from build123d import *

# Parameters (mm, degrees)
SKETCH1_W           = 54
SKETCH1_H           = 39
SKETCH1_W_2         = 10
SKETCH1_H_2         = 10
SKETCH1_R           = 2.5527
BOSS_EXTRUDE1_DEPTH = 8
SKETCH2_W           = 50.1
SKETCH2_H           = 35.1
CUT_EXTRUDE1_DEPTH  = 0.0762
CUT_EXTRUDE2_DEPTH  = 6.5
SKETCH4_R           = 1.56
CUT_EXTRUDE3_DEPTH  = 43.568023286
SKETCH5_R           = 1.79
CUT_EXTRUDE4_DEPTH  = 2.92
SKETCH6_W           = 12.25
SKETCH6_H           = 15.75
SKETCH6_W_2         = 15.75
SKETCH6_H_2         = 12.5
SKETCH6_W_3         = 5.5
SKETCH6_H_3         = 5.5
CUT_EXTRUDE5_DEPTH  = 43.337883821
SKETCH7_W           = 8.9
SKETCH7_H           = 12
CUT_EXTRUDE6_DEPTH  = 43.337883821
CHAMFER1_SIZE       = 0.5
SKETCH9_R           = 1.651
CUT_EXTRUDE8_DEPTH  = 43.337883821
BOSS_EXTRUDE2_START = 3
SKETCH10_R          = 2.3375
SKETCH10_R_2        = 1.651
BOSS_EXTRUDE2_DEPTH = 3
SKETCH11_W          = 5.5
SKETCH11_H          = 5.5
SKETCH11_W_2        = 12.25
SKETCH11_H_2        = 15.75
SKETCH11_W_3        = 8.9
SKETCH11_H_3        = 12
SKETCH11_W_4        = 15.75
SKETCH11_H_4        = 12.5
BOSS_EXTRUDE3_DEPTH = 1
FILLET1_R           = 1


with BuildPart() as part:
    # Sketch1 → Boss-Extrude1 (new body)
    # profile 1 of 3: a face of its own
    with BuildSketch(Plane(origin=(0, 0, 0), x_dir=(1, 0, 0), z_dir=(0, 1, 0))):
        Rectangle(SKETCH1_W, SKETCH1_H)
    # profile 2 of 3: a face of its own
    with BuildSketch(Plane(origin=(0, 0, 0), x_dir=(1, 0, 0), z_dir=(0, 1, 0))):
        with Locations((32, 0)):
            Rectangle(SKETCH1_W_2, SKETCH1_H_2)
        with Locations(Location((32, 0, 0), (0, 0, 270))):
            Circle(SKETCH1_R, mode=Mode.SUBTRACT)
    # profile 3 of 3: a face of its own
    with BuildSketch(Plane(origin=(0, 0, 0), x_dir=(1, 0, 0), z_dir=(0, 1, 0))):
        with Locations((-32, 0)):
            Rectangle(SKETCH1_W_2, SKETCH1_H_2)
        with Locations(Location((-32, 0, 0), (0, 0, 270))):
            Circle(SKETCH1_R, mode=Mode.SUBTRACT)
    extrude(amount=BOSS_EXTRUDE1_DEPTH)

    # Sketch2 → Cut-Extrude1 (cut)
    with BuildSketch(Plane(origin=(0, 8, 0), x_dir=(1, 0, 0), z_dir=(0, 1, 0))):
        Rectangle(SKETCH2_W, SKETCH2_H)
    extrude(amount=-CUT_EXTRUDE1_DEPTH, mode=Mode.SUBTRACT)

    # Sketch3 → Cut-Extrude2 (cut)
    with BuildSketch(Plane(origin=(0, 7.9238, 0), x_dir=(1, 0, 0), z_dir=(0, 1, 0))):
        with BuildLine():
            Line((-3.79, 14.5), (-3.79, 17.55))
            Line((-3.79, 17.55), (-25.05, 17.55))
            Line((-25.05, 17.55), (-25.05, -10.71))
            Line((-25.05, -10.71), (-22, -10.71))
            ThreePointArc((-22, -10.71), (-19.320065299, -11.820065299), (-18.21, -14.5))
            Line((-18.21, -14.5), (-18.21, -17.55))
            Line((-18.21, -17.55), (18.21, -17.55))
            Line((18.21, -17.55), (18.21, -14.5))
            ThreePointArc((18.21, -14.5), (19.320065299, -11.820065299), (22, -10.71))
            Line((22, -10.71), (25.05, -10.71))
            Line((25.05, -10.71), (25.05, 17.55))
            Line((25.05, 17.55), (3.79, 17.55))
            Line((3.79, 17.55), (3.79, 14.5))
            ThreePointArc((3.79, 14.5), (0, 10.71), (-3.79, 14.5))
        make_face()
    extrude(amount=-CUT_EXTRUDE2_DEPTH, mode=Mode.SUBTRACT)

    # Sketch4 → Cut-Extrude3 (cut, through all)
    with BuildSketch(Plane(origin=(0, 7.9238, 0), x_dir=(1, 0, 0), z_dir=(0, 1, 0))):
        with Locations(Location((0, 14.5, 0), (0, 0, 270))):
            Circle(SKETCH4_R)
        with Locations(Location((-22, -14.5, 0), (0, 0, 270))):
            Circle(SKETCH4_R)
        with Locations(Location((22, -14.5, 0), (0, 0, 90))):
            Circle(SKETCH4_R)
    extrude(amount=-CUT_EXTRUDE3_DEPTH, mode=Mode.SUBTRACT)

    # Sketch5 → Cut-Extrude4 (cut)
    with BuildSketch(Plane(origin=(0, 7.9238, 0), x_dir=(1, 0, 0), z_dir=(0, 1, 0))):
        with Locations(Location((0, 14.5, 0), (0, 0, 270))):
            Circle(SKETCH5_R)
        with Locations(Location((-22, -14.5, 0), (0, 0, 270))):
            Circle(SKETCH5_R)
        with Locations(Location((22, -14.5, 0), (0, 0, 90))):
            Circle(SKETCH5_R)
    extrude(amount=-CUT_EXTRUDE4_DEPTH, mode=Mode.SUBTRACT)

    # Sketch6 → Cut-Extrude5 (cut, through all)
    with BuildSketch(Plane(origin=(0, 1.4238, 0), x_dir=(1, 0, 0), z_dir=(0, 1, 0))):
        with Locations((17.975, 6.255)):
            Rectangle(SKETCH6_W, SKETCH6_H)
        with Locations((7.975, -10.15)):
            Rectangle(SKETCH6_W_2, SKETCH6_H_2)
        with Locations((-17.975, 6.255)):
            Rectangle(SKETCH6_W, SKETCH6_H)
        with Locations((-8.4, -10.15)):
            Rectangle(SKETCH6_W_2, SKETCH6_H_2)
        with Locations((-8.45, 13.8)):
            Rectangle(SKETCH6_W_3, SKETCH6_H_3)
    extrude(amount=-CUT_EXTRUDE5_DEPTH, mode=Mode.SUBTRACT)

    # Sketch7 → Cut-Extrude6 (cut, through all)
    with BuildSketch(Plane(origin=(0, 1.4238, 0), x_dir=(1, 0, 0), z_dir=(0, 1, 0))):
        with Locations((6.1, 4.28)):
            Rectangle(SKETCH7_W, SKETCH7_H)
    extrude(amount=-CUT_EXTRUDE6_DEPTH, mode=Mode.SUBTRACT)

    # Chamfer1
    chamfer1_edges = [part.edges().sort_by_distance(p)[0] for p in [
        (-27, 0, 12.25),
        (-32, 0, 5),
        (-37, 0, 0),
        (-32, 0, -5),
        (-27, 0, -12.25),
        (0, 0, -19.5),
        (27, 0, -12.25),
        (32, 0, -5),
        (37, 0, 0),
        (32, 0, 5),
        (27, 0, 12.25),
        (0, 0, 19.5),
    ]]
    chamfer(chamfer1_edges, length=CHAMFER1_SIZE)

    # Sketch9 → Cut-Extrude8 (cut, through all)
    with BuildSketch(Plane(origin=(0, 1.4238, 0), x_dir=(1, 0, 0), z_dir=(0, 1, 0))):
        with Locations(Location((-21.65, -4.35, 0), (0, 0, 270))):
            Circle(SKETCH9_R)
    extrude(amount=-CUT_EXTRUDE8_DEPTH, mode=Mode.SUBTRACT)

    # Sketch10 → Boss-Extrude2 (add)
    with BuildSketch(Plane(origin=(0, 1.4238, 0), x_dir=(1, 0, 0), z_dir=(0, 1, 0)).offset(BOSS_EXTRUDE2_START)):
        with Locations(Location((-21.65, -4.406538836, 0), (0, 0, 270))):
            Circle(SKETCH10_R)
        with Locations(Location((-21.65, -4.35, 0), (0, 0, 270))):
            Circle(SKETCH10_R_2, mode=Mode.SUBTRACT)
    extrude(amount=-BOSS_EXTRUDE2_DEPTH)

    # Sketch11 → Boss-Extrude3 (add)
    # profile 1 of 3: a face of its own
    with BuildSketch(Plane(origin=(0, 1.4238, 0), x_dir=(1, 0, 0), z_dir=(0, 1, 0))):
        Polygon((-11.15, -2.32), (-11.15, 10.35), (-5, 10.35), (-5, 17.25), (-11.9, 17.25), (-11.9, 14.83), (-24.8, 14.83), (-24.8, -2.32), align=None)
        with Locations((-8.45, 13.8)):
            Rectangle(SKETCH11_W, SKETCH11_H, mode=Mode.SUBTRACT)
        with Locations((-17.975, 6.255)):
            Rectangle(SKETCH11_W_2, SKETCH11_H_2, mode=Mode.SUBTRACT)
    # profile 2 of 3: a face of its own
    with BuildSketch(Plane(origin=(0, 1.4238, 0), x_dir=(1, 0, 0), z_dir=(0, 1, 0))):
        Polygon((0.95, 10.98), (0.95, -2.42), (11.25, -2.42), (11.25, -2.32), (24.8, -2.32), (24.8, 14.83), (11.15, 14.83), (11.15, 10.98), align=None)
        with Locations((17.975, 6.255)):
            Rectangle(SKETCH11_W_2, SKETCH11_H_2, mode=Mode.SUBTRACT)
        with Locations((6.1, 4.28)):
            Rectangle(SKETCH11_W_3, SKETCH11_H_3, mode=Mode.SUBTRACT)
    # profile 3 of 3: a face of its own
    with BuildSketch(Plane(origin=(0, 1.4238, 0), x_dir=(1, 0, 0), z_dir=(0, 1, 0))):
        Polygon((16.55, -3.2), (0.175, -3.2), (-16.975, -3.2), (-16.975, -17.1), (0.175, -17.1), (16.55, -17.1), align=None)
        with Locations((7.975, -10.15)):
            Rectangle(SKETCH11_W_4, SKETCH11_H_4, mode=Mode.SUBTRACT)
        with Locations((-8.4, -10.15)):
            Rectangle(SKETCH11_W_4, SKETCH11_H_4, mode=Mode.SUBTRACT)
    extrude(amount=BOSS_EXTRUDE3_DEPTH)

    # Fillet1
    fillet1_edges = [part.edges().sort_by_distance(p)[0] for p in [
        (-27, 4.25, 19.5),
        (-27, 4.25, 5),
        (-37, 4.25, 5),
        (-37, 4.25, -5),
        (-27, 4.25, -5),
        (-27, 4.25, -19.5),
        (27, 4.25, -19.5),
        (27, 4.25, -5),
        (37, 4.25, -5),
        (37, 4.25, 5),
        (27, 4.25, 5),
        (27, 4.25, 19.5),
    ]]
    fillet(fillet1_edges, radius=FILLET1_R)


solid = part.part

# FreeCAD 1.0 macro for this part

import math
import FreeCAD as App
import Part
import Sketcher
Q = App.Units.Quantity


def edges_at(feature, points):
    """Names of the edges that pass closest to the given points."""
    edges = feature.Shape.Edges
    near = lambda p: min(range(len(edges)), key=lambda i: edges[i].distToShape(Part.Vertex(*p))[0])
    return sorted({f"Edge{near(p) + 1}" for p in points})

doc = App.newDocument("Part")
body = doc.addObject("PartDesign::Body", "Body")

sketch1 = body.newObject("Sketcher::SketchObject", "Sketch")
sketch1.AttachmentSupport = (doc.getObject("XZ_Plane"), [""])
sketch1.MapMode = "FlatFace"
sketch1.addGeometry([
    Part.LineSegment(App.Vector(-27, 5, 0), App.Vector(-27, 19.5, 0)),
    Part.LineSegment(App.Vector(-27, 19.5, 0), App.Vector(27, 19.5, 0)),
    Part.LineSegment(App.Vector(27, 19.5, 0), App.Vector(27, 5, 0)),
    Part.LineSegment(App.Vector(27, 5, 0), App.Vector(37, 5, 0)),
    Part.LineSegment(App.Vector(37, 5, 0), App.Vector(37, -5, 0)),
    Part.LineSegment(App.Vector(37, -5, 0), App.Vector(27, -5, 0)),
    Part.LineSegment(App.Vector(27, -5, 0), App.Vector(27, -19.5, 0)),
    Part.LineSegment(App.Vector(27, -19.5, 0), App.Vector(-27, -19.5, 0)),
    Part.LineSegment(App.Vector(-27, -19.5, 0), App.Vector(-27, -5, 0)),
    Part.LineSegment(App.Vector(-27, -5, 0), App.Vector(-37, -5, 0)),
    Part.LineSegment(App.Vector(-37, -5, 0), App.Vector(-37, 5, 0)),
    Part.LineSegment(App.Vector(-37, 5, 0), App.Vector(-27, 5, 0)),
    Part.Circle(App.Vector(-32, 0, 0), App.Vector(0, 0, 1), 2.5527),
    Part.Circle(App.Vector(32, 0, 0), App.Vector(0, 0, 1), 2.5527),
], False)
sketch1.addConstraint([
    Sketcher.Constraint("Coincident", 0, 2, 1, 1),
    Sketcher.Constraint("Coincident", 1, 2, 2, 1),
    Sketcher.Constraint("Coincident", 2, 2, 3, 1),
    Sketcher.Constraint("Coincident", 3, 2, 4, 1),
    Sketcher.Constraint("Coincident", 4, 2, 5, 1),
    Sketcher.Constraint("Coincident", 5, 2, 6, 1),
    Sketcher.Constraint("Coincident", 6, 2, 7, 1),
    Sketcher.Constraint("Coincident", 7, 2, 8, 1),
    Sketcher.Constraint("Coincident", 8, 2, 9, 1),
    Sketcher.Constraint("Coincident", 9, 2, 10, 1),
    Sketcher.Constraint("Coincident", 10, 2, 11, 1),
    Sketcher.Constraint("Coincident", 11, 2, 0, 1),
    Sketcher.Constraint("Vertical", 0),
    Sketcher.Constraint("Horizontal", 1),
    Sketcher.Constraint("Vertical", 2),
    Sketcher.Constraint("Horizontal", 3),
    Sketcher.Constraint("Vertical", 4),
    Sketcher.Constraint("Horizontal", 5),
    Sketcher.Constraint("Vertical", 6),
    Sketcher.Constraint("Horizontal", 7),
    Sketcher.Constraint("Vertical", 8),
    Sketcher.Constraint("Horizontal", 9),
    Sketcher.Constraint("Vertical", 10),
    Sketcher.Constraint("Horizontal", 11),
    Sketcher.Constraint("Equal", 12, 13),
    Sketcher.Constraint("Symmetric", 12, 3, 13, 3, -1, 1),
    Sketcher.Constraint("Symmetric", 0, 2, 6, 2, -1, 1),
    Sketcher.Constraint("Symmetric", 2, 2, 8, 2, -1, 1),
    Sketcher.Constraint("Symmetric", 4, 2, 10, 2, -1, 1),
    Sketcher.Constraint("Symmetric", 5, 2, 8, 2, -2),
    Sketcher.Constraint("PointOnObject", 12, 3, -1),
    Sketcher.Constraint("Equal", 11, 4),
    Sketcher.Constraint("DistanceX", 1, 1, 1, 2, Q("54 mm")),
    Sketcher.Constraint("DistanceX", 3, 1, 3, 2, Q("10 mm")),
    Sketcher.Constraint("DistanceY", 0, 1, 0, 2, Q("14.5 mm")),
    Sketcher.Constraint("DistanceX", 12, 3, -1, 1, Q("32 mm")),
    Sketcher.Constraint("Diameter", 12, Q("5.1054 mm")),
])
pad1 = body.newObject("PartDesign::Pad", "Pad")
pad1.Profile = sketch1
pad1.Length = 8
pad1.Reversed = True

sketch2 = body.newObject("Sketcher::SketchObject", "Sketch001")
sketch2.AttachmentSupport = (doc.getObject("XZ_Plane"), [""])
sketch2.MapMode = "FlatFace"
sketch2.AttachmentOffset = App.Placement(App.Vector(0, 0, -8), App.Rotation())
sketch2.addGeometry([
    Part.LineSegment(App.Vector(-25.05, -17.55, 0), App.Vector(-25.05, 17.55, 0)),
    Part.LineSegment(App.Vector(-25.05, 17.55, 0), App.Vector(25.05, 17.55, 0)),
    Part.LineSegment(App.Vector(25.05, 17.55, 0), App.Vector(25.05, -17.55, 0)),
    Part.LineSegment(App.Vector(25.05, -17.55, 0), App.Vector(-25.05, -17.55, 0)),
], False)
sketch2.addConstraint([
    Sketcher.Constraint("Coincident", 0, 2, 1, 1),
    Sketcher.Constraint("Coincident", 1, 2, 2, 1),
    Sketcher.Constraint("Coincident", 2, 2, 3, 1),
    Sketcher.Constraint("Coincident", 3, 2, 0, 1),
    Sketcher.Constraint("Vertical", 0),
    Sketcher.Constraint("Horizontal", 1),
    Sketcher.Constraint("Vertical", 2),
    Sketcher.Constraint("Horizontal", 3),
    Sketcher.Constraint("Symmetric", 0, 2, 2, 2, -1, 1),
    Sketcher.Constraint("DistanceX", 1, 1, 1, 2, Q("50.1 mm")),
    Sketcher.Constraint("DistanceY", 0, 1, 0, 2, Q("35.1 mm")),
])
pocket1 = body.newObject("PartDesign::Pocket", "Pocket")
pocket1.Profile = sketch2
pocket1.Length = 0.0762
pocket1.Reversed = True

sketch3 = body.newObject("Sketcher::SketchObject", "Sketch002")
sketch3.AttachmentSupport = (doc.getObject("XZ_Plane"), [""])
sketch3.MapMode = "FlatFace"
sketch3.AttachmentOffset = App.Placement(App.Vector(0, 0, -7.9238), App.Rotation())
sketch3.addGeometry([
    Part.LineSegment(App.Vector(-3.79, -14.5, 0), App.Vector(-3.79, -17.55, 0)),
    Part.LineSegment(App.Vector(-3.79, -17.55, 0), App.Vector(-25.05, -17.55, 0)),
    Part.LineSegment(App.Vector(-25.05, -17.55, 0), App.Vector(-25.05, 10.71, 0)),
    Part.LineSegment(App.Vector(-25.05, 10.71, 0), App.Vector(-22, 10.71, 0)),
    Part.ArcOfCircle(Part.Circle(App.Vector(-22, 14.5, 0), App.Vector(0, 0, 1), 3.79), math.radians(-90), math.radians(0)),
    Part.LineSegment(App.Vector(-18.21, 14.5, 0), App.Vector(-18.21, 17.55, 0)),
    Part.LineSegment(App.Vector(-18.21, 17.55, 0), App.Vector(18.21, 17.55, 0)),
    Part.LineSegment(App.Vector(18.21, 17.55, 0), App.Vector(18.21, 14.5, 0)),
    Part.ArcOfCircle(Part.Circle(App.Vector(22, 14.5, 0), App.Vector(0, 0, 1), 3.79), math.radians(180), math.radians(270)),
    Part.LineSegment(App.Vector(22, 10.71, 0), App.Vector(25.05, 10.71, 0)),
    Part.LineSegment(App.Vector(25.05, 10.71, 0), App.Vector(25.05, -17.55, 0)),
    Part.LineSegment(App.Vector(25.05, -17.55, 0), App.Vector(3.79, -17.55, 0)),
    Part.LineSegment(App.Vector(3.79, -17.55, 0), App.Vector(3.79, -14.5, 0)),
    Part.ArcOfCircle(Part.Circle(App.Vector(0, -14.5, 0), App.Vector(0, 0, 1), 3.79), math.radians(0), math.radians(180)),
], False)
sketch3.addConstraint([
    Sketcher.Constraint("Coincident", 0, 2, 1, 1),
    Sketcher.Constraint("Coincident", 1, 2, 2, 1),
    Sketcher.Constraint("Coincident", 2, 2, 3, 1),
    Sketcher.Constraint("Tangent", 3, 2, 4, 1),
    Sketcher.Constraint("Tangent", 4, 2, 5, 1),
    Sketcher.Constraint("Coincident", 5, 2, 6, 1),
    Sketcher.Constraint("Coincident", 6, 2, 7, 1),
    Sketcher.Constraint("Tangent", 7, 2, 8, 1),
    Sketcher.Constraint("Tangent", 8, 2, 9, 1),
    Sketcher.Constraint("Coincident", 9, 2, 10, 1),
    Sketcher.Constraint("Coincident", 10, 2, 11, 1),
    Sketcher.Constraint("Coincident", 11, 2, 12, 1),
    Sketcher.Constraint("Tangent", 12, 2, 13, 1),
    Sketcher.Constraint("Tangent", 13, 2, 0, 1),
    Sketcher.Constraint("Vertical", 0),
    Sketcher.Constraint("Horizontal", 1),
    Sketcher.Constraint("Vertical", 2),
    Sketcher.Constraint("Horizontal", 3),
    Sketcher.Constraint("Vertical", 5),
    Sketcher.Constraint("Horizontal", 6),
    Sketcher.Constraint("Vertical", 7),
    Sketcher.Constraint("Horizontal", 9),
    Sketcher.Constraint("Vertical", 10),
    Sketcher.Constraint("Horizontal", 11),
    Sketcher.Constraint("Vertical", 12),
    Sketcher.Constraint("Equal", 4, 8),
    Sketcher.Constraint("Equal", 8, 13),
    Sketcher.Constraint("Symmetric", 4, 3, 8, 3, -2),
    Sketcher.Constraint("Symmetric", 1, 2, 10, 2, -2),
    Sketcher.Constraint("PointOnObject", 13, 3, -2),
    Sketcher.Constraint("Equal", 9, 0),
    Sketcher.Constraint("Equal", 0, 5),
    Sketcher.Constraint("Radius", 4, Q("3.79 mm")),
    Sketcher.Constraint("DistanceX", 4, 3, -1, 1, Q("22 mm")),
    Sketcher.Constraint("DistanceY", 13, 3, 4, 3, Q("29 mm")),
    Sketcher.Constraint("DistanceX", 1, 2, 1, 1, Q("21.26 mm")),
    Sketcher.Constraint("DistanceY", -1, 1, 4, 3, Q("14.5 mm")),
])
pocket2 = body.newObject("PartDesign::Pocket", "Pocket001")
pocket2.Profile = sketch3
pocket2.Length = 6.5
pocket2.Reversed = True

sketch4 = body.newObject("Sketcher::SketchObject", "Sketch003")
sketch4.AttachmentSupport = (doc.getObject("XZ_Plane"), [""])
sketch4.MapMode = "FlatFace"
sketch4.AttachmentOffset = App.Placement(App.Vector(0, 0, -7.9238), App.Rotation())
sketch4.addGeometry([
    Part.Circle(App.Vector(0, -14.5, 0), App.Vector(0, 0, 1), 1.56),
    Part.Circle(App.Vector(-22, 14.5, 0), App.Vector(0, 0, 1), 1.56),
    Part.Circle(App.Vector(22, 14.5, 0), App.Vector(0, 0, 1), 1.56),
], False)
sketch4.addConstraint([
    Sketcher.Constraint("Equal", 0, 1),
    Sketcher.Constraint("Equal", 1, 2),
    Sketcher.Constraint("Symmetric", 1, 3, 2, 3, -2),
    Sketcher.Constraint("PointOnObject", 0, 3, -2),
    Sketcher.Constraint("Diameter", 0, Q("3.12 mm")),
    Sketcher.Constraint("DistanceX", 1, 3, -1, 1, Q("22 mm")),
    Sketcher.Constraint("DistanceY", 0, 3, 1, 3, Q("29 mm")),
    Sketcher.Constraint("DistanceY", 0, 3, -1, 1, Q("14.5 mm")),
])
pocket3 = body.newObject("PartDesign::Pocket", "Pocket002")
pocket3.Profile = sketch4
pocket3.Type = "ThroughAll"
pocket3.Reversed = True

sketch5 = body.newObject("Sketcher::SketchObject", "Sketch004")
sketch5.AttachmentSupport = (doc.getObject("XZ_Plane"), [""])
sketch5.MapMode = "FlatFace"
sketch5.AttachmentOffset = App.Placement(App.Vector(0, 0, -7.9238), App.Rotation())
sketch5.addGeometry([
    Part.Circle(App.Vector(0, -14.5, 0), App.Vector(0, 0, 1), 1.79),
    Part.Circle(App.Vector(-22, 14.5, 0), App.Vector(0, 0, 1), 1.79),
    Part.Circle(App.Vector(22, 14.5, 0), App.Vector(0, 0, 1), 1.79),
], False)
sketch5.addConstraint([
    Sketcher.Constraint("Equal", 0, 1),
    Sketcher.Constraint("Equal", 1, 2),
    Sketcher.Constraint("Symmetric", 1, 3, 2, 3, -2),
    Sketcher.Constraint("PointOnObject", 0, 3, -2),
    Sketcher.Constraint("Diameter", 0, Q("3.58 mm")),
    Sketcher.Constraint("DistanceX", 1, 3, -1, 1, Q("22 mm")),
    Sketcher.Constraint("DistanceY", 0, 3, 1, 3, Q("29 mm")),
    Sketcher.Constraint("DistanceY", 0, 3, -1, 1, Q("14.5 mm")),
])
pocket4 = body.newObject("PartDesign::Pocket", "Pocket003")
pocket4.Profile = sketch5
pocket4.Length = 2.92
pocket4.Reversed = True

sketch6 = body.newObject("Sketcher::SketchObject", "Sketch005")
sketch6.AttachmentSupport = (doc.getObject("XZ_Plane"), [""])
sketch6.MapMode = "FlatFace"
sketch6.AttachmentOffset = App.Placement(App.Vector(0, 0, -1.4238), App.Rotation())
sketch6.addGeometry([
    Part.LineSegment(App.Vector(11.85, -14.13, 0), App.Vector(11.85, 1.62, 0)),
    Part.LineSegment(App.Vector(11.85, 1.62, 0), App.Vector(24.1, 1.62, 0)),
    Part.LineSegment(App.Vector(24.1, 1.62, 0), App.Vector(24.1, -14.13, 0)),
    Part.LineSegment(App.Vector(24.1, -14.13, 0), App.Vector(11.85, -14.13, 0)),
    Part.LineSegment(App.Vector(0.1, 3.9, 0), App.Vector(0.1, 16.4, 0)),
    Part.LineSegment(App.Vector(0.1, 16.4, 0), App.Vector(15.85, 16.4, 0)),
    Part.LineSegment(App.Vector(15.85, 16.4, 0), App.Vector(15.85, 3.9, 0)),
    Part.LineSegment(App.Vector(15.85, 3.9, 0), App.Vector(0.1, 3.9, 0)),
    Part.LineSegment(App.Vector(-24.1, -14.13, 0), App.Vector(-24.1, 1.62, 0)),
    Part.LineSegment(App.Vector(-24.1, 1.62, 0), App.Vector(-11.85, 1.62, 0)),
    Part.LineSegment(App.Vector(-11.85, 1.62, 0), App.Vector(-11.85, -14.13, 0)),
    Part.LineSegment(App.Vector(-11.85, -14.13, 0), App.Vector(-24.1, -14.13, 0)),
    Part.LineSegment(App.Vector(-16.275, 3.9, 0), App.Vector(-16.275, 16.4, 0)),
    Part.LineSegment(App.Vector(-16.275, 16.4, 0), App.Vector(-0.525, 16.4, 0)),
    Part.LineSegment(App.Vector(-0.525, 16.4, 0), App.Vector(-0.525, 3.9, 0)),
    Part.LineSegment(App.Vector(-0.525, 3.9, 0), App.Vector(-16.275, 3.9, 0)),
    Part.LineSegment(App.Vector(-11.2, -16.55, 0), App.Vector(-11.2, -11.05, 0)),
    Part.LineSegment(App.Vector(-11.2, -11.05, 0), App.Vector(-5.7, -11.05, 0)),
    Part.LineSegment(App.Vector(-5.7, -11.05, 0), App.Vector(-5.7, -16.55, 0)),
    Part.LineSegment(App.Vector(-5.7, -16.55, 0), App.Vector(-11.2, -16.55, 0)),
], False)
sketch6.addConstraint([
    Sketcher.Constraint("Coincident", 0, 2, 1, 1),
    Sketcher.Constraint("Coincident", 1, 2, 2, 1),
    Sketcher.Constraint("Coincident", 2, 2, 3, 1),
    Sketcher.Constraint("Coincident", 3, 2, 0, 1),
    Sketcher.Constraint("Coincident", 4, 2, 5, 1),
    Sketcher.Constraint("Coincident", 5, 2, 6, 1),
    Sketcher.Constraint("Coincident", 6, 2, 7, 1),
    Sketcher.Constraint("Coincident", 7, 2, 4, 1),
    Sketcher.Constraint("Coincident", 8, 2, 9, 1),
    Sketcher.Constraint("Coincident", 9, 2, 10, 1),
    Sketcher.Constraint("Coincident", 10, 2, 11, 1),
    Sketcher.Constraint("Coincident", 11, 2, 8, 1),
    Sketcher.Constraint("Coincident", 12, 2, 13, 1),
    Sketcher.Constraint("Coincident", 13, 2, 14, 1),
    Sketcher.Constraint("Coincident", 14, 2, 15, 1),
    Sketcher.Constraint("Coincident", 15, 2, 12, 1),
    Sketcher.Constraint("Coincident", 16, 2, 17, 1),
    Sketcher.Constraint("Coincident", 17, 2, 18, 1),
    Sketcher.Constraint("Coincident", 18, 2, 19, 1),
    Sketcher.Constraint("Coincident", 19, 2, 16, 1),
    Sketcher.Constraint("Vertical", 0),
    Sketcher.Constraint("Horizontal", 1),
    Sketcher.Constraint("Vertical", 2),
    Sketcher.Constraint("Horizontal", 3),
    Sketcher.Constraint("Vertical", 4),
    Sketcher.Constraint("Horizontal", 5),
    Sketcher.Constraint("Vertical", 6),
    Sketcher.Constraint("Horizontal", 7),
    Sketcher.Constraint("Vertical", 8),
    Sketcher.Constraint("Horizontal", 9),
    Sketcher.Constraint("Vertical", 10),
    Sketcher.Constraint("Horizontal", 11),
    Sketcher.Constraint("Vertical", 12),
    Sketcher.Constraint("Horizontal", 13),
    Sketcher.Constraint("Vertical", 14),
    Sketcher.Constraint("Horizontal", 15),
    Sketcher.Constraint("Vertical", 16),
    Sketcher.Constraint("Horizontal", 17),
    Sketcher.Constraint("Vertical", 18),
    Sketcher.Constraint("Horizontal", 19),
    Sketcher.Constraint("Symmetric", 1, 2, 8, 2, -2),
    Sketcher.Constraint("Symmetric", 3, 2, 10, 2, -2),
    Sketcher.Constraint("Horizontal", 5, 2, 12, 2),
    Sketcher.Constraint("Horizontal", 7, 2, 14, 2),
    Sketcher.Constraint("Equal", 7, 13),
    Sketcher.Constraint("Equal", 15, 0),
    Sketcher.Constraint("Equal", 19, 16),
    Sketcher.Constraint("DistanceX", 17, 1, 17, 2, Q("5.5 mm")),
    Sketcher.Constraint("DistanceY", 4, 1, 4, 2, Q("12.5 mm")),
    Sketcher.Constraint("DistanceX", 4, 2, 1, 2, Q("24 mm")),
    Sketcher.Constraint("DistanceX", 0, 2, 5, 2, Q("4 mm")),
    Sketcher.Constraint("DistanceX", 1, 1, 1, 2, Q("12.25 mm")),
    Sketcher.Constraint("DistanceX", -1, 1, 1, 2, Q("24.1 mm")),
    Sketcher.Constraint("DistanceY", -1, 1, 4, 2, Q("16.4 mm")),
    Sketcher.Constraint("DistanceX", 16, 2, -1, 1, Q("11.2 mm")),
    Sketcher.Constraint("DistanceY", -1, 1, 0, 2, Q("1.62 mm")),
    Sketcher.Constraint("DistanceY", 16, 2, -1, 1, Q("11.05 mm")),
    Sketcher.Constraint("DistanceX", 12, 2, -1, 1, Q("16.275 mm")),
])
pocket5 = body.newObject("PartDesign::Pocket", "Pocket004")
pocket5.Profile = sketch6
pocket5.Type = "ThroughAll"
pocket5.Reversed = True

sketch7 = body.newObject("Sketcher::SketchObject", "Sketch006")
sketch7.AttachmentSupport = (doc.getObject("XZ_Plane"), [""])
sketch7.MapMode = "FlatFace"
sketch7.AttachmentOffset = App.Placement(App.Vector(0, 0, -1.4238), App.Rotation())
sketch7.addGeometry([
    Part.LineSegment(App.Vector(1.65, -10.28, 0), App.Vector(1.65, 1.72, 0)),
    Part.LineSegment(App.Vector(1.65, 1.72, 0), App.Vector(10.55, 1.72, 0)),
    Part.LineSegment(App.Vector(10.55, 1.72, 0), App.Vector(10.55, -10.28, 0)),
    Part.LineSegment(App.Vector(10.55, -10.28, 0), App.Vector(1.65, -10.28, 0)),
], False)
sketch7.addConstraint([
    Sketcher.Constraint("Coincident", 0, 2, 1, 1),
    Sketcher.Constraint("Coincident", 1, 2, 2, 1),
    Sketcher.Constraint("Coincident", 2, 2, 3, 1),
    Sketcher.Constraint("Coincident", 3, 2, 0, 1),
    Sketcher.Constraint("Vertical", 0),
    Sketcher.Constraint("Horizontal", 1),
    Sketcher.Constraint("Vertical", 2),
    Sketcher.Constraint("Horizontal", 3),
    Sketcher.Constraint("DistanceY", 0, 1, 0, 2, Q("12 mm")),
    Sketcher.Constraint("DistanceX", 1, 1, 1, 2, Q("8.9 mm")),
    Sketcher.Constraint("DistanceX", -1, 1, 0, 2, Q("1.65 mm")),
    Sketcher.Constraint("DistanceY", -1, 1, 0, 2, Q("1.72 mm")),
])
pocket6 = body.newObject("PartDesign::Pocket", "Pocket005")
pocket6.Profile = sketch7
pocket6.Type = "ThroughAll"
pocket6.Reversed = True
doc.recompute()

chamfer = body.newObject("PartDesign::Chamfer", "Chamfer")
chamfer.Base = (pocket6, edges_at(pocket6, [
    (-27, 0, 12.25),
    (-32, 0, 5),
    (-37, 0, 0),
    (-32, 0, -5),
    (-27, 0, -12.25),
    (0, 0, -19.5),
    (27, 0, -12.25),
    (32, 0, -5),
    (37, 0, 0),
    (32, 0, 5),
    (27, 0, 12.25),
    (0, 0, 19.5),
]))
chamfer.Size = 0.5

sketch8 = body.newObject("Sketcher::SketchObject", "Sketch007")
sketch8.AttachmentSupport = (doc.getObject("XZ_Plane"), [""])
sketch8.MapMode = "FlatFace"
sketch8.AttachmentOffset = App.Placement(App.Vector(0, 0, -1.4238), App.Rotation())
sketch8.addGeometry(Part.Circle(App.Vector(-21.65, 4.35, 0), App.Vector(0, 0, 1), 1.651), False)
sketch8.addConstraint([
    Sketcher.Constraint("Diameter", 0, Q("3.302 mm")),
    Sketcher.Constraint("DistanceX", 0, 3, -1, 1, Q("21.65 mm")),
    Sketcher.Constraint("DistanceY", -1, 1, 0, 3, Q("4.35 mm")),
])
pocket7 = body.newObject("PartDesign::Pocket", "Pocket006")
pocket7.Profile = sketch8
pocket7.Type = "ThroughAll"
pocket7.Reversed = True

sketch9 = body.newObject("Sketcher::SketchObject", "Sketch008")
sketch9.AttachmentSupport = (doc.getObject("XZ_Plane"), [""])
sketch9.MapMode = "FlatFace"
sketch9.AttachmentOffset = App.Placement(App.Vector(0, 0, -4.4238), App.Rotation())
sketch9.addGeometry([
    Part.Circle(App.Vector(-21.65, 4.406539, 0), App.Vector(0, 0, 1), 2.3375),
    Part.Circle(App.Vector(-21.65, 4.35, 0), App.Vector(0, 0, 1), 1.651),
], False)
sketch9.addConstraint([
    Sketcher.Constraint("Vertical", 0, 3, 1, 3),
    Sketcher.Constraint("Diameter", 0, Q("4.675 mm")),
    Sketcher.Constraint("Diameter", 1, Q("3.302 mm")),
    Sketcher.Constraint("DistanceX", 0, 3, -1, 1, Q("21.65 mm")),
    Sketcher.Constraint("DistanceY", -1, 1, 1, 3, Q("4.35 mm")),
    Sketcher.Constraint("DistanceY", -1, 1, 0, 3, Q("4.406539 mm")),
])
pad2 = body.newObject("PartDesign::Pad", "Pad001")
pad2.Profile = sketch9
pad2.Length = 3

sketch10 = body.newObject("Sketcher::SketchObject", "Sketch009")
sketch10.AttachmentSupport = (doc.getObject("XZ_Plane"), [""])
sketch10.MapMode = "FlatFace"
sketch10.AttachmentOffset = App.Placement(App.Vector(0, 0, -1.4238), App.Rotation())
sketch10.addGeometry([
    Part.LineSegment(App.Vector(-11.15, 2.32, 0), App.Vector(-11.15, -10.35, 0)),
    Part.LineSegment(App.Vector(-11.15, -10.35, 0), App.Vector(-5, -10.35, 0)),
    Part.LineSegment(App.Vector(-5, -10.35, 0), App.Vector(-5, -17.25, 0)),
    Part.LineSegment(App.Vector(-5, -17.25, 0), App.Vector(-11.9, -17.25, 0)),
    Part.LineSegment(App.Vector(-11.9, -17.25, 0), App.Vector(-11.9, -14.83, 0)),
    Part.LineSegment(App.Vector(-11.9, -14.83, 0), App.Vector(-24.8, -14.83, 0)),
    Part.LineSegment(App.Vector(-24.8, -14.83, 0), App.Vector(-24.8, 2.32, 0)),
    Part.LineSegment(App.Vector(-24.8, 2.32, 0), App.Vector(-11.15, 2.32, 0)),
    Part.LineSegment(App.Vector(-11.85, 1.62, 0), App.Vector(-24.1, 1.62, 0)),
    Part.LineSegment(App.Vector(-24.1, 1.62, 0), App.Vector(-24.1, -14.13, 0)),
    Part.LineSegment(App.Vector(-24.1, -14.13, 0), App.Vector(-11.85, -14.13, 0)),
    Part.LineSegment(App.Vector(-11.85, -14.13, 0), App.Vector(-11.85, 1.62, 0)),
    Part.LineSegment(App.Vector(-5.7, -11.05, 0), App.Vector(-11.2, -11.05, 0)),
    Part.LineSegment(App.Vector(-11.2, -11.05, 0), App.Vector(-11.2, -16.55, 0)),
    Part.LineSegment(App.Vector(-11.2, -16.55, 0), App.Vector(-5.7, -16.55, 0)),
    Part.LineSegment(App.Vector(-5.7, -16.55, 0), App.Vector(-5.7, -11.05, 0)),
    Part.LineSegment(App.Vector(0.95, -10.98, 0), App.Vector(0.95, 2.42, 0)),
    Part.LineSegment(App.Vector(0.95, 2.42, 0), App.Vector(11.25, 2.42, 0)),
    Part.LineSegment(App.Vector(11.25, 2.42, 0), App.Vector(11.25, 2.32, 0)),
    Part.LineSegment(App.Vector(11.25, 2.32, 0), App.Vector(24.8, 2.32, 0)),
    Part.LineSegment(App.Vector(24.8, 2.32, 0), App.Vector(24.8, -14.83, 0)),
    Part.LineSegment(App.Vector(24.8, -14.83, 0), App.Vector(11.15, -14.83, 0)),
    Part.LineSegment(App.Vector(11.15, -14.83, 0), App.Vector(11.15, -10.98, 0)),
    Part.LineSegment(App.Vector(11.15, -10.98, 0), App.Vector(0.95, -10.98, 0)),
    Part.LineSegment(App.Vector(10.55, 1.72, 0), App.Vector(1.65, 1.72, 0)),
    Part.LineSegment(App.Vector(1.65, 1.72, 0), App.Vector(1.65, -10.28, 0)),
    Part.LineSegment(App.Vector(1.65, -10.28, 0), App.Vector(10.55, -10.28, 0)),
    Part.LineSegment(App.Vector(10.55, -10.28, 0), App.Vector(10.55, 1.72, 0)),
    Part.LineSegment(App.Vector(24.1, 1.62, 0), App.Vector(11.85, 1.62, 0)),
    Part.LineSegment(App.Vector(11.85, 1.62, 0), App.Vector(11.85, -14.13, 0)),
    Part.LineSegment(App.Vector(11.85, -14.13, 0), App.Vector(24.1, -14.13, 0)),
    Part.LineSegment(App.Vector(24.1, -14.13, 0), App.Vector(24.1, 1.62, 0)),
    Part.LineSegment(App.Vector(16.55, 3.2, 0), App.Vector(-16.975, 3.2, 0)),
    Part.LineSegment(App.Vector(-16.975, 3.2, 0), App.Vector(-16.975, 17.1, 0)),
    Part.LineSegment(App.Vector(-16.975, 17.1, 0), App.Vector(16.55, 17.1, 0)),
    Part.LineSegment(App.Vector(16.55, 17.1, 0), App.Vector(16.55, 3.2, 0)),
    Part.LineSegment(App.Vector(-0.525, 16.4, 0), App.Vector(-16.275, 16.4, 0)),
    Part.LineSegment(App.Vector(-16.275, 16.4, 0), App.Vector(-16.275, 3.9, 0)),
    Part.LineSegment(App.Vector(-16.275, 3.9, 0), App.Vector(-0.525, 3.9, 0)),
    Part.LineSegment(App.Vector(-0.525, 3.9, 0), App.Vector(-0.525, 16.4, 0)),
    Part.LineSegment(App.Vector(15.85, 16.4, 0), App.Vector(0.1, 16.4, 0)),
    Part.LineSegment(App.Vector(0.1, 16.4, 0), App.Vector(0.1, 3.9, 0)),
    Part.LineSegment(App.Vector(0.1, 3.9, 0), App.Vector(15.85, 3.9, 0)),
    Part.LineSegment(App.Vector(15.85, 3.9, 0), App.Vector(15.85, 16.4, 0)),
], False)
sketch10.addConstraint([
    Sketcher.Constraint("Coincident", 0, 2, 1, 1),
    Sketcher.Constraint("Coincident", 1, 2, 2, 1),
    Sketcher.Constraint("Coincident", 2, 2, 3, 1),
    Sketcher.Constraint("Coincident", 3, 2, 4, 1),
    Sketcher.Constraint("Coincident", 4, 2, 5, 1),
    Sketcher.Constraint("Coincident", 5, 2, 6, 1),
    Sketcher.Constraint("Coincident", 6, 2, 7, 1),
    Sketcher.Constraint("Coincident", 7, 2, 0, 1),
    Sketcher.Constraint("Coincident", 8, 2, 9, 1),
    Sketcher.Constraint("Coincident", 9, 2, 10, 1),
    Sketcher.Constraint("Coincident", 10, 2, 11, 1),
    Sketcher.Constraint("Coincident", 11, 2, 8, 1),
    Sketcher.Constraint("Coincident", 12, 2, 13, 1),
    Sketcher.Constraint("Coincident", 13, 2, 14, 1),
    Sketcher.Constraint("Coincident", 14, 2, 15, 1),
    Sketcher.Constraint("Coincident", 15, 2, 12, 1),
    Sketcher.Constraint("Coincident", 16, 2, 17, 1),
    Sketcher.Constraint("Coincident", 17, 2, 18, 1),
    Sketcher.Constraint("Coincident", 18, 2, 19, 1),
    Sketcher.Constraint("Coincident", 19, 2, 20, 1),
    Sketcher.Constraint("Coincident", 20, 2, 21, 1),
    Sketcher.Constraint("Coincident", 21, 2, 22, 1),
    Sketcher.Constraint("Coincident", 22, 2, 23, 1),
    Sketcher.Constraint("Coincident", 23, 2, 16, 1),
    Sketcher.Constraint("Coincident", 24, 2, 25, 1),
    Sketcher.Constraint("Coincident", 25, 2, 26, 1),
    Sketcher.Constraint("Coincident", 26, 2, 27, 1),
    Sketcher.Constraint("Coincident", 27, 2, 24, 1),
    Sketcher.Constraint("Coincident", 28, 2, 29, 1),
    Sketcher.Constraint("Coincident", 29, 2, 30, 1),
    Sketcher.Constraint("Coincident", 30, 2, 31, 1),
    Sketcher.Constraint("Coincident", 31, 2, 28, 1),
    Sketcher.Constraint("Coincident", 32, 2, 33, 1),
    Sketcher.Constraint("Coincident", 33, 2, 34, 1),
    Sketcher.Constraint("Coincident", 34, 2, 35, 1),
    Sketcher.Constraint("Coincident", 35, 2, 32, 1),
    Sketcher.Constraint("Coincident", 36, 2, 37, 1),
    Sketcher.Constraint("Coincident", 37, 2, 38, 1),
    Sketcher.Constraint("Coincident", 38, 2, 39, 1),
    Sketcher.Constraint("Coincident", 39, 2, 36, 1),
    Sketcher.Constraint("Coincident", 40, 2, 41, 1),
    Sketcher.Constraint("Coincident", 41, 2, 42, 1),
    Sketcher.Constraint("Coincident", 42, 2, 43, 1),
    Sketcher.Constraint("Coincident", 43, 2, 40, 1),
    Sketcher.Constraint("Vertical", 0),
    Sketcher.Constraint("Horizontal", 1),
    Sketcher.Constraint("Vertical", 2),
    Sketcher.Constraint("Horizontal", 3),
    Sketcher.Constraint("Vertical", 4),
    Sketcher.Constraint("Horizontal", 5),
    Sketcher.Constraint("Vertical", 6),
    Sketcher.Constraint("Horizontal", 7),
    Sketcher.Constraint("Horizontal", 8),
    Sketcher.Constraint("Vertical", 9),
    Sketcher.Constraint("Horizontal", 10),
    Sketcher.Constraint("Vertical", 11),
    Sketcher.Constraint("Horizontal", 12),
    Sketcher.Constraint("Vertical", 13),
    Sketcher.Constraint("Horizontal", 14),
    Sketcher.Constraint("Vertical", 15),
    Sketcher.Constraint("Vertical", 16),
    Sketcher.Constraint("Horizontal", 17),
    Sketcher.Constraint("Vertical", 18),
    Sketcher.Constraint("Horizontal", 19),
    Sketcher.Constraint("Vertical", 20),
    Sketcher.Constraint("Horizontal", 21),
    Sketcher.Constraint("Vertical", 22),
    Sketcher.Constraint("Horizontal", 23),
    Sketcher.Constraint("Horizontal", 24),
    Sketcher.Constraint("Vertical", 25),
    Sketcher.Constraint("Horizontal", 26),
    Sketcher.Constraint("Vertical", 27),
    Sketcher.Constraint("Horizontal", 28),
    Sketcher.Constraint("Vertical", 29),
    Sketcher.Constraint("Horizontal", 30),
    Sketcher.Constraint("Vertical", 31),
    Sketcher.Constraint("Horizontal", 32),
    Sketcher.Constraint("Vertical", 33),
    Sketcher.Constraint("Horizontal", 34),
    Sketcher.Constraint("Vertical", 35),
    Sketcher.Constraint("Horizontal", 36),
    Sketcher.Constraint("Vertical", 37),
    Sketcher.Constraint("Horizontal", 38),
    Sketcher.Constraint("Vertical", 39),
    Sketcher.Constraint("Horizontal", 40),
    Sketcher.Constraint("Vertical", 41),
    Sketcher.Constraint("Horizontal", 42),
    Sketcher.Constraint("Vertical", 43),
    Sketcher.Constraint("Symmetric", 6, 2, 19, 2, -2),
    Sketcher.Constraint("Symmetric", 11, 2, 28, 2, -2),
    Sketcher.Constraint("Symmetric", 9, 2, 30, 2, -2),
    Sketcher.Constraint("Horizontal", 5, 2, 20, 2),
    Sketcher.Constraint("Horizontal", 39, 2, 40, 2),
    Sketcher.Constraint("Horizontal", 38, 2, 41, 2),
    Sketcher.Constraint("Equal", 7, 21),
    Sketcher.Constraint("Equal", 38, 40),
    Sketcher.Constraint("Equal", 3, 2),
    Sketcher.Constraint("Equal", 42, 9),
    Sketcher.Constraint("Equal", 14, 13),
    Sketcher.Constraint("DistanceY", 25, 2, 25, 1, Q("12 mm")),
    Sketcher.Constraint("DistanceX", 3, 2, 3, 1, Q("6.9 mm")),
    Sketcher.Constraint("DistanceX", 5, 2, 5, 1, Q("12.9 mm")),
    Sketcher.Constraint("DistanceX", 12, 2, 12, 1, Q("5.5 mm")),
    Sketcher.Constraint("DistanceX", 17, 1, 17, 2, Q("10.3 mm")),
    Sketcher.Constraint("DistanceX", 23, 2, 23, 1, Q("10.2 mm")),
    Sketcher.Constraint("DistanceX", 24, 2, 24, 1, Q("8.9 mm")),
    Sketcher.Constraint("DistanceY", 16, 1, 16, 2, Q("13.4 mm")),
    Sketcher.Constraint("DistanceY", 18, 2, 18, 1, Q("0.1 mm")),
    Sketcher.Constraint("DistanceY", 33, 1, 33, 2, Q("13.9 mm")),
    Sketcher.Constraint("DistanceY", 37, 2, 37, 1, Q("12.5 mm")),
    Sketcher.Constraint("DistanceX", 1, 2, -1, 1, Q("5 mm")),
    Sketcher.Constraint("DistanceX", 27, 2, 34, 2, Q("6 mm")),
    Sketcher.Constraint("DistanceX", 28, 2, 42, 2, Q("4 mm")),
    Sketcher.Constraint("DistanceX", 1, 1, 1, 2, Q("6.15 mm")),
    Sketcher.Constraint("DistanceX", 8, 2, 8, 1, Q("12.25 mm")),
    Sketcher.Constraint("DistanceX", 36, 2, 36, 1, Q("15.75 mm")),
    Sketcher.Constraint("DistanceY", 0, 2, 0, 1, Q("12.67 mm")),
    Sketcher.Constraint("DistanceY", 4, 1, 4, 2, Q("2.42 mm")),
    Sketcher.Constraint("DistanceX", 8, 2, -1, 1, Q("24.1 mm")),
    Sketcher.Constraint("DistanceX", 12, 2, -1, 1, Q("11.2 mm")),
    Sketcher.Constraint("DistanceY", -1, 1, 32, 2, Q("3.2 mm")),
    Sketcher.Constraint("DistanceY", -1, 1, 36, 2, Q("16.4 mm")),
    Sketcher.Constraint("DistanceY", 8, 2, 6, 2, Q("0.7 mm")),
    Sketcher.Constraint("DistanceY", 12, 2, 0, 2, Q("0.7 mm")),
    Sketcher.Constraint("DistanceX", 16, 2, 24, 2, Q("0.7 mm")),
    Sketcher.Constraint("DistanceY", 24, 2, 16, 2, Q("0.7 mm")),
    Sketcher.Constraint("DistanceX", 33, 2, 36, 2, Q("0.7 mm")),
    Sketcher.Constraint("DistanceX", 32, 2, 32, 1, Q("33.525 mm")),
    Sketcher.Constraint("DistanceY", 0, 2, -1, 1, Q("10.35 mm")),
])
pad3 = body.newObject("PartDesign::Pad", "Pad002")
pad3.Profile = sketch10
pad3.Length = 1
pad3.Reversed = True
doc.recompute()

fillet = body.newObject("PartDesign::Fillet", "Fillet")
fillet.Base = (pad3, edges_at(pad3, [
    (-27, 4.25, 19.5),
    (-27, 4.25, 5),
    (-37, 4.25, 5),
    (-37, 4.25, -5),
    (-27, 4.25, -5),
    (-27, 4.25, -19.5),
    (27, 4.25, -19.5),
    (27, 4.25, -5),
    (37, 4.25, -5),
    (37, 4.25, 5),
    (27, 4.25, 5),
    (27, 4.25, 19.5),
]))
fillet.Radius = 1

doc.recompute()
